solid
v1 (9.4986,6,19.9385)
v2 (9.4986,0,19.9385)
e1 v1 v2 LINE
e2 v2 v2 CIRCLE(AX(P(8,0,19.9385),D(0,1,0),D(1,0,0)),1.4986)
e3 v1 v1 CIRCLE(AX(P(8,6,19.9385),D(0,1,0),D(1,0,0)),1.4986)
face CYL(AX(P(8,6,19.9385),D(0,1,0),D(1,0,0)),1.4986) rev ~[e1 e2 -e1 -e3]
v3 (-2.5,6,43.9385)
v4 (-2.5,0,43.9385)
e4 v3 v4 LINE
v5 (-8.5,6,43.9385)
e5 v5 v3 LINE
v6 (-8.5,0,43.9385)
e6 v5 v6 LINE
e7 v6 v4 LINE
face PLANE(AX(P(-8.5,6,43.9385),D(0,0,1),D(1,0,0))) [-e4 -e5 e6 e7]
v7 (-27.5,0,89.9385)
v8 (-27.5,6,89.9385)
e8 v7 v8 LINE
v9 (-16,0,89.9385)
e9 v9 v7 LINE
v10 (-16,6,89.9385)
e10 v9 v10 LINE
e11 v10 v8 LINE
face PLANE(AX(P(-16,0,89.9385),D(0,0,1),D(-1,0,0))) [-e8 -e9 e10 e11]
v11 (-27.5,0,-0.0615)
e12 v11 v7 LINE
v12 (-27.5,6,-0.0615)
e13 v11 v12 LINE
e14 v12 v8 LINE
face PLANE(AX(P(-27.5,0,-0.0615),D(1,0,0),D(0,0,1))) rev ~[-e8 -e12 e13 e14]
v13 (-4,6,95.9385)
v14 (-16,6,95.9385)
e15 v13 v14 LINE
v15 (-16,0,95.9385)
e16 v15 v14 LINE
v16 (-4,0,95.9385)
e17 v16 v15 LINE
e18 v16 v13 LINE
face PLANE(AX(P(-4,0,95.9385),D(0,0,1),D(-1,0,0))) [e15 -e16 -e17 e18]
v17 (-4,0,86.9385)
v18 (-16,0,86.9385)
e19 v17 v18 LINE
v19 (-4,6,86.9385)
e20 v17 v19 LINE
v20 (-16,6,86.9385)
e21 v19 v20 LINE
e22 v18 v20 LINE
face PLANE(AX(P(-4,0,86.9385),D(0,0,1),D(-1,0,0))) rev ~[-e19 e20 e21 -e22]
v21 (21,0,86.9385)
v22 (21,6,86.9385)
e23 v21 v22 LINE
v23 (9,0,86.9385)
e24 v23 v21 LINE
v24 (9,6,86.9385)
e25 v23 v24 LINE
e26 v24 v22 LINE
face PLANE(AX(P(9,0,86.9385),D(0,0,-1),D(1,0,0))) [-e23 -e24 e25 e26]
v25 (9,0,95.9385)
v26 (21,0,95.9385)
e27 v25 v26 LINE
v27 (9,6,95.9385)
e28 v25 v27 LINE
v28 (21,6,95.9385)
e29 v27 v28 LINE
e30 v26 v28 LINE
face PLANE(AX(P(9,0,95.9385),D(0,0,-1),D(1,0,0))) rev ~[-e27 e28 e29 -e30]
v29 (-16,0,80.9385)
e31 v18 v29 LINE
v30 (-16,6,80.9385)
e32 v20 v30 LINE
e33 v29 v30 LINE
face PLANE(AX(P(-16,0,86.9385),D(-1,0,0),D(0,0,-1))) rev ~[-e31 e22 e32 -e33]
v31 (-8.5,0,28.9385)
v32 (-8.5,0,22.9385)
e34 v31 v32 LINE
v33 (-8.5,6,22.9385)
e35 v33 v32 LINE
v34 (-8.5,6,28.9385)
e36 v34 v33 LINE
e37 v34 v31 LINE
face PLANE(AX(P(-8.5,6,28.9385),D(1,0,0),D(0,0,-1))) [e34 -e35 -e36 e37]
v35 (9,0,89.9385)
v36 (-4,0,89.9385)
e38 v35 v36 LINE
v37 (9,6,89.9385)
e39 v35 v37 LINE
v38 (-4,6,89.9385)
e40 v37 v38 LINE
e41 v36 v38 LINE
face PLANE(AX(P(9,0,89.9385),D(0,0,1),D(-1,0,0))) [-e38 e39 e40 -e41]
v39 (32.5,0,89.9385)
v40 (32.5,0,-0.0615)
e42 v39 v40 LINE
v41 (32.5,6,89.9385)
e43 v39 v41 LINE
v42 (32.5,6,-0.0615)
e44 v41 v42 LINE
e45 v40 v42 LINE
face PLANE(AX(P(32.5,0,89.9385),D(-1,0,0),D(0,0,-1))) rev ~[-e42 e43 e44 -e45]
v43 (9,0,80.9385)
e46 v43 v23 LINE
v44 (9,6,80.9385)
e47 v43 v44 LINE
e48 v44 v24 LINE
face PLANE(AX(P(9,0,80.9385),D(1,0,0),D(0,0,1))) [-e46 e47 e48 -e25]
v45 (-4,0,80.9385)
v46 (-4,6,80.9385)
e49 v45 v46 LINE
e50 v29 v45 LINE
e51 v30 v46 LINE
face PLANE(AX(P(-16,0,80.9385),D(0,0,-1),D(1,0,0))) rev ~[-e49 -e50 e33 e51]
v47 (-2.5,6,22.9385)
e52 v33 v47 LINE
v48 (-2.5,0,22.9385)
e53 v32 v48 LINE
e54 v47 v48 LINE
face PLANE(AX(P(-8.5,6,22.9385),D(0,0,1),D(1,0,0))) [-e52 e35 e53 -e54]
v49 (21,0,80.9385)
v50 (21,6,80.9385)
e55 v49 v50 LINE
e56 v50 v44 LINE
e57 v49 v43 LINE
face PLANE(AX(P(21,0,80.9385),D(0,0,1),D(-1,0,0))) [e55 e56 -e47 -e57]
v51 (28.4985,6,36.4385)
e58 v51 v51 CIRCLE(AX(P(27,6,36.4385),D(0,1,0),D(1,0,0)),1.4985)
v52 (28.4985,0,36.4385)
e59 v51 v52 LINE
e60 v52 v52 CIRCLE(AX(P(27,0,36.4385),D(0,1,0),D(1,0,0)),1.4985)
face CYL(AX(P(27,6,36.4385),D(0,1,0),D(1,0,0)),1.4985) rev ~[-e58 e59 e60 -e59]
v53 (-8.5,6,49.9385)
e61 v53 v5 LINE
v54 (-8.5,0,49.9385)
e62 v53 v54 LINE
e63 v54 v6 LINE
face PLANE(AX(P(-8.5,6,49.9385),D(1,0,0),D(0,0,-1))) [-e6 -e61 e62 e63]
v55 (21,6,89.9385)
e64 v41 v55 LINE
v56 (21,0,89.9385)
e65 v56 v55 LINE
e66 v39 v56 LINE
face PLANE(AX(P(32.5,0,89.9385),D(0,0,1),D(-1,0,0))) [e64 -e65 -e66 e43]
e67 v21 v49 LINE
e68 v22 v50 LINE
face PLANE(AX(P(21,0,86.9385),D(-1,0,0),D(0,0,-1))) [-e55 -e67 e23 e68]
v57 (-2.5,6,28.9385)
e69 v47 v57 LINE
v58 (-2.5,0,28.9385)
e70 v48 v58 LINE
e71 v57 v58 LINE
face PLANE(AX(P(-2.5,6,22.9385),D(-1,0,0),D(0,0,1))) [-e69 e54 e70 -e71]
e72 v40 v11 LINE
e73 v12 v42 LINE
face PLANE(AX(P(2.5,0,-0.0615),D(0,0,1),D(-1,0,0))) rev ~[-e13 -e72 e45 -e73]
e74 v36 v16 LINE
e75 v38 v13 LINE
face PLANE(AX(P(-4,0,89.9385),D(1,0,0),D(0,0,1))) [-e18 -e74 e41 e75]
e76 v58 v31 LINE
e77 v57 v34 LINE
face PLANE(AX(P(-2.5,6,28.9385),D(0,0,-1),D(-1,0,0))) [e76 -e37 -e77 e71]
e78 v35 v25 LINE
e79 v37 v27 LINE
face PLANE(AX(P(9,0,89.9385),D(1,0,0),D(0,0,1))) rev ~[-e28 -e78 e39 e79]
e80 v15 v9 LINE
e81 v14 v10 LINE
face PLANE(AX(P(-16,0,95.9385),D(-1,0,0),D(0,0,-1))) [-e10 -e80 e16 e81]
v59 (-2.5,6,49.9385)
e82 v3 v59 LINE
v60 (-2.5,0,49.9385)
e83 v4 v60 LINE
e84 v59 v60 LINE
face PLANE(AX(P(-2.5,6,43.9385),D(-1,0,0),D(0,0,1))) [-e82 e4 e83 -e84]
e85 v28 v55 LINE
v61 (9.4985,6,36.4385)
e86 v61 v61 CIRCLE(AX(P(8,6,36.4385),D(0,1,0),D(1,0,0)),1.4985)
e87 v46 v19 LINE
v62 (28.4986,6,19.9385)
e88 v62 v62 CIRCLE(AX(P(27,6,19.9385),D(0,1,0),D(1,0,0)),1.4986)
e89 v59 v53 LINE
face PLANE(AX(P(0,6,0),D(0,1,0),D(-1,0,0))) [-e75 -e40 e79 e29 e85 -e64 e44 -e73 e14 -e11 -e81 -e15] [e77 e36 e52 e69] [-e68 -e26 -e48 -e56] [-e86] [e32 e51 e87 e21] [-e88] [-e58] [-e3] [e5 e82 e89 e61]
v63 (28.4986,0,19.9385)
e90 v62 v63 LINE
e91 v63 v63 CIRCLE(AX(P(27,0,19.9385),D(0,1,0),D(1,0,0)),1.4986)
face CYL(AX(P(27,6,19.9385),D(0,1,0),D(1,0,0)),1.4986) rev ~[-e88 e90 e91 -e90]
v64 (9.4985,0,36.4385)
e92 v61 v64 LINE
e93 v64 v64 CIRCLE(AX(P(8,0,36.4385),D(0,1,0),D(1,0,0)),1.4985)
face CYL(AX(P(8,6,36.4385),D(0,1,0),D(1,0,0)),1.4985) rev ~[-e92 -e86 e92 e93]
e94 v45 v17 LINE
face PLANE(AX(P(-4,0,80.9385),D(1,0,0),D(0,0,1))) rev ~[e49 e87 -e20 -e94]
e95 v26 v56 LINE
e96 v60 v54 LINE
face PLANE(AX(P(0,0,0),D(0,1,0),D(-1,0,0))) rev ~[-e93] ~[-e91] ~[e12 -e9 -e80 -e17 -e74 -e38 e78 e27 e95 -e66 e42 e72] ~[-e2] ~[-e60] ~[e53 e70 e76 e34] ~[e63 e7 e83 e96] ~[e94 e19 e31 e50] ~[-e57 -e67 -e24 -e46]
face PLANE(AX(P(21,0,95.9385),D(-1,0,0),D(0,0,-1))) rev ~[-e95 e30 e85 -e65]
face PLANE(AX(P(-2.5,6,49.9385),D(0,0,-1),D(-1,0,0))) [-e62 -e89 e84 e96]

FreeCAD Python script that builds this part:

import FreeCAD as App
import Part
import Sketcher
from FreeCAD import Vector
Q = App.Units.Quantity

doc = App.newDocument("Part")
body = doc.addObject("PartDesign::Body", "Body")

# Sketch on XZ plane
sketch1 = body.newObject("Sketcher::SketchObject", "Sketch")
sketch1.AttachmentSupport = (doc.getObject("XZ_Plane"), [""])
sketch1.MapMode = "FlatFace"
sketch1.addGeometry([
    Part.LineSegment(Vector(-28, 0, 0), Vector(-28, 90, 0)),  # 0
    Part.LineSegment(Vector(-28, 90, 0), Vector(-16, 90, 0)),  # 1
    Part.LineSegment(Vector(-16, 90, 0), Vector(-16, 96, 0)),  # 2
    Part.LineSegment(Vector(-16, 96, 0), Vector(-4, 96, 0)),  # 3
    Part.LineSegment(Vector(-4, 96, 0), Vector(-4, 90, 0)),  # 4
    Part.LineSegment(Vector(-4, 90, 0), Vector(9, 90, 0)),  # 5
    Part.LineSegment(Vector(9, 90, 0), Vector(9, 96, 0)),  # 6
    Part.LineSegment(Vector(9, 96, 0), Vector(21, 96, 0)),  # 7
    Part.LineSegment(Vector(21, 96, 0), Vector(21, 90, 0)),  # 8
    Part.LineSegment(Vector(21, 90, 0), Vector(32, 90, 0)),  # 9
    Part.LineSegment(Vector(32, 90, 0), Vector(32, 0, 0)),  # 10
    Part.LineSegment(Vector(32, 0, 0), Vector(-28, 0, 0)),  # 11
    Part.LineSegment(Vector(21, 87, 0), Vector(9, 87, 0)),  # 12
    Part.LineSegment(Vector(9, 87, 0), Vector(9, 81, 0)),  # 13
    Part.LineSegment(Vector(9, 81, 0), Vector(21, 81, 0)),  # 14
    Part.LineSegment(Vector(21, 81, 0), Vector(21, 87, 0)),  # 15
    Part.LineSegment(Vector(-4, 81, 0), Vector(-4, 87, 0)),  # 16
    Part.LineSegment(Vector(-4, 87, 0), Vector(-16, 87, 0)),  # 17
    Part.LineSegment(Vector(-16, 87, 0), Vector(-16, 81, 0)),  # 18
    Part.LineSegment(Vector(-16, 81, 0), Vector(-4, 81, 0)),  # 19
], False)
sketch1.addConstraint([
    Sketcher.Constraint("Coincident", 0, 2, 1, 1),
    Sketcher.Constraint("Coincident", 1, 2, 2, 1),
    Sketcher.Constraint("Coincident", 2, 2, 3, 1),
    Sketcher.Constraint("Coincident", 3, 2, 4, 1),
    Sketcher.Constraint("Coincident", 4, 2, 5, 1),
    Sketcher.Constraint("Coincident", 5, 2, 6, 1),
    Sketcher.Constraint("Coincident", 6, 2, 7, 1),
    Sketcher.Constraint("Coincident", 7, 2, 8, 1),
    Sketcher.Constraint("Coincident", 8, 2, 9, 1),
    Sketcher.Constraint("Coincident", 9, 2, 10, 1),
    Sketcher.Constraint("Coincident", 10, 2, 11, 1),
    Sketcher.Constraint("Coincident", 11, 2, 0, 1),
    Sketcher.Constraint("Coincident", 12, 2, 13, 1),
    Sketcher.Constraint("Coincident", 13, 2, 14, 1),
    Sketcher.Constraint("Coincident", 14, 2, 15, 1),
    Sketcher.Constraint("Coincident", 15, 2, 12, 1),
    Sketcher.Constraint("Coincident", 16, 2, 17, 1),
    Sketcher.Constraint("Coincident", 17, 2, 18, 1),
    Sketcher.Constraint("Coincident", 18, 2, 19, 1),
    Sketcher.Constraint("Coincident", 19, 2, 16, 1),
    Sketcher.Constraint("Vertical", 0),
    Sketcher.Constraint("Horizontal", 1),
    Sketcher.Constraint("Vertical", 2),
    Sketcher.Constraint("Horizontal", 3),
    Sketcher.Constraint("Vertical", 4),
    Sketcher.Constraint("Horizontal", 5),
    Sketcher.Constraint("Vertical", 6),
    Sketcher.Constraint("Horizontal", 7),
    Sketcher.Constraint("Vertical", 8),
    Sketcher.Constraint("Horizontal", 9),
    Sketcher.Constraint("Vertical", 10),
    Sketcher.Constraint("Horizontal", 11),
    Sketcher.Constraint("Horizontal", 12),
    Sketcher.Constraint("Vertical", 13),
    Sketcher.Constraint("Horizontal", 14),
    Sketcher.Constraint("Vertical", 15),
    Sketcher.Constraint("Vertical", 16),
    Sketcher.Constraint("Horizontal", 17),
    Sketcher.Constraint("Vertical", 18),
    Sketcher.Constraint("Horizontal", 19),
    Sketcher.Constraint("Horizontal", 1, 2, 4, 2),
    Sketcher.Constraint("Horizontal", 3, 2, 6, 2),
    Sketcher.Constraint("Horizontal", 5, 2, 8, 2),
    Sketcher.Constraint("Horizontal", 15, 2, 16, 2),
    Sketcher.Constraint("Horizontal", 14, 2, 18, 2),
    Sketcher.Constraint("Vertical", 6, 2, 12, 2),
    Sketcher.Constraint("Vertical", 8, 2, 14, 2),
    Sketcher.Constraint("Vertical", 4, 2, 16, 2),
    Sketcher.Constraint("Vertical", 2, 2, 17, 2),
    Sketcher.Constraint("Equal", 3, 7),
    Sketcher.Constraint("Equal", 1, 9),
    Sketcher.Constraint("Equal", 8, 13),
    Sketcher.Constraint("DistanceX", 3, 1, 3, 2, Q("12 mm")),
    Sketcher.Constraint("DistanceX", 11, 2, 11, 1, Q("60 mm")),
    Sketcher.Constraint("DistanceY", 0, 1, 0, 2, Q("90 mm")),
    Sketcher.Constraint("DistanceY", 2, 1, 2, 2, Q("6 mm")),
    Sketcher.Constraint("DistanceY", 12, 2, 5, 2, Q("3 mm")),
    Sketcher.Constraint("DistanceX", 5, 1, 5, 2, Q("13 mm")),
    Sketcher.Constraint("DistanceX", 1, 2, -1, 1, Q("16 mm")),
    Sketcher.Constraint("DistanceY", -1, 1, 0, 2, Q("89.9385 mm")),
])
pad1 = body.newObject("PartDesign::Pad", "Pad")
pad1.Profile = sketch1
pad1.Length = 6
pad1.Reversed = True

# Sketch on XZ plane
sketch2 = body.newObject("Sketcher::SketchObject", "Sketch001")
sketch2.AttachmentSupport = (doc.getObject("XZ_Plane"), [""])
sketch2.MapMode = "FlatFace"
sketch2.AttachmentOffset = App.Placement(Vector(0, 0, -6), App.Rotation())
sketch2.addGeometry([
    Part.Circle(Vector(8, 19.9, 0), Vector(0, 0, 1), 1.5),  # 0
    Part.Circle(Vector(27, 19.9, 0), Vector(0, 0, 1), 1.5),  # 1
    Part.Circle(Vector(27, 36.4, 0), Vector(0, 0, 1), 1.5),  # 2
    Part.Circle(Vector(8, 36.4, 0), Vector(0, 0, 1), 1.5),  # 3
    Part.LineSegment(Vector(-8.5, 49.9, 0), Vector(-2.5, 49.9, 0)),  # 4
    Part.LineSegment(Vector(-2.5, 49.9, 0), Vector(-2.5, 43.9, 0)),  # 5
    Part.LineSegment(Vector(-2.5, 43.9, 0), Vector(-8.5, 43.9, 0)),  # 6
    Part.LineSegment(Vector(-8.5, 43.9, 0), Vector(-8.5, 49.9, 0)),  # 7
    Part.LineSegment(Vector(-8.5, 28.9, 0), Vector(-2.5, 28.9, 0)),  # 8
    Part.LineSegment(Vector(-2.5, 28.9, 0), Vector(-2.5, 22.9, 0)),  # 9
    Part.LineSegment(Vector(-2.5, 22.9, 0), Vector(-8.5, 22.9, 0)),  # 10
    Part.LineSegment(Vector(-8.5, 22.9, 0), Vector(-8.5, 28.9, 0)),  # 11
], False)
sketch2.addConstraint([
    Sketcher.Constraint("Coincident", 4, 2, 5, 1),
    Sketcher.Constraint("Coincident", 5, 2, 6, 1),
    Sketcher.Constraint("Coincident", 6, 2, 7, 1),
    Sketcher.Constraint("Coincident", 7, 2, 4, 1),
    Sketcher.Constraint("Coincident", 8, 2, 9, 1),
    Sketcher.Constraint("Coincident", 9, 2, 10, 1),
    Sketcher.Constraint("Coincident", 10, 2, 11, 1),
    Sketcher.Constraint("Coincident", 11, 2, 8, 1),
    Sketcher.Constraint("Horizontal", 4),
    Sketcher.Constraint("Vertical", 5),
    Sketcher.Constraint("Horizontal", 6),
    Sketcher.Constraint("Vertical", 7),
    Sketcher.Constraint("Horizontal", 8),
    Sketcher.Constraint("Vertical", 9),
    Sketcher.Constraint("Horizontal", 10),
    Sketcher.Constraint("Vertical", 11),
    Sketcher.Constraint("Equal", 0, 1),
    Sketcher.Constraint("Equal", 1, 2),
    Sketcher.Constraint("Equal", 2, 3),
    Sketcher.Constraint("Horizontal", 0, 3, 1, 3),
    Sketcher.Constraint("Horizontal", 2, 3, 3, 3),
    Sketcher.Constraint("Vertical", 1, 3, 2, 3),
    Sketcher.Constraint("Vertical", 0, 3, 3, 3),
    Sketcher.Constraint("Vertical", 5, 2, 8, 2),
    Sketcher.Constraint("Vertical", 7, 2, 10, 2),
    Sketcher.Constraint("Equal", 10, 5),
    Sketcher.Constraint("Equal", 7, 9),
    Sketcher.Constraint("DistanceX", 4, 1, 4, 2, Q("6 mm")),
    Sketcher.Constraint("Diameter", 2, Q("2.997 mm")),
    Sketcher.Constraint("DistanceX", 0, 3, 1, 3, Q("19 mm")),
    Sketcher.Constraint("DistanceY", 8, 2, 5, 2, Q("15 mm")),
    Sketcher.Constraint("DistanceY", 1, 3, 2, 3, Q("16.5 mm")),
    Sketcher.Constraint("DistanceX", 6, 2, 3, 3, Q("16.5 mm")),
    Sketcher.Constraint("DistanceX", -1, 1, 0, 3, Q("8 mm")),
    Sketcher.Constraint("DistanceY", 0, 3, 4, 2, Q("30 mm")),
    Sketcher.Constraint("DistanceY", -1, 1, 0, 3, Q("19.9385 mm")),
])
pocket1 = body.newObject("PartDesign::Pocket", "Pocket")
pocket1.Profile = sketch2
pocket1.Type = "ThroughAll"
pocket1.Reversed = True

doc.recompute()
